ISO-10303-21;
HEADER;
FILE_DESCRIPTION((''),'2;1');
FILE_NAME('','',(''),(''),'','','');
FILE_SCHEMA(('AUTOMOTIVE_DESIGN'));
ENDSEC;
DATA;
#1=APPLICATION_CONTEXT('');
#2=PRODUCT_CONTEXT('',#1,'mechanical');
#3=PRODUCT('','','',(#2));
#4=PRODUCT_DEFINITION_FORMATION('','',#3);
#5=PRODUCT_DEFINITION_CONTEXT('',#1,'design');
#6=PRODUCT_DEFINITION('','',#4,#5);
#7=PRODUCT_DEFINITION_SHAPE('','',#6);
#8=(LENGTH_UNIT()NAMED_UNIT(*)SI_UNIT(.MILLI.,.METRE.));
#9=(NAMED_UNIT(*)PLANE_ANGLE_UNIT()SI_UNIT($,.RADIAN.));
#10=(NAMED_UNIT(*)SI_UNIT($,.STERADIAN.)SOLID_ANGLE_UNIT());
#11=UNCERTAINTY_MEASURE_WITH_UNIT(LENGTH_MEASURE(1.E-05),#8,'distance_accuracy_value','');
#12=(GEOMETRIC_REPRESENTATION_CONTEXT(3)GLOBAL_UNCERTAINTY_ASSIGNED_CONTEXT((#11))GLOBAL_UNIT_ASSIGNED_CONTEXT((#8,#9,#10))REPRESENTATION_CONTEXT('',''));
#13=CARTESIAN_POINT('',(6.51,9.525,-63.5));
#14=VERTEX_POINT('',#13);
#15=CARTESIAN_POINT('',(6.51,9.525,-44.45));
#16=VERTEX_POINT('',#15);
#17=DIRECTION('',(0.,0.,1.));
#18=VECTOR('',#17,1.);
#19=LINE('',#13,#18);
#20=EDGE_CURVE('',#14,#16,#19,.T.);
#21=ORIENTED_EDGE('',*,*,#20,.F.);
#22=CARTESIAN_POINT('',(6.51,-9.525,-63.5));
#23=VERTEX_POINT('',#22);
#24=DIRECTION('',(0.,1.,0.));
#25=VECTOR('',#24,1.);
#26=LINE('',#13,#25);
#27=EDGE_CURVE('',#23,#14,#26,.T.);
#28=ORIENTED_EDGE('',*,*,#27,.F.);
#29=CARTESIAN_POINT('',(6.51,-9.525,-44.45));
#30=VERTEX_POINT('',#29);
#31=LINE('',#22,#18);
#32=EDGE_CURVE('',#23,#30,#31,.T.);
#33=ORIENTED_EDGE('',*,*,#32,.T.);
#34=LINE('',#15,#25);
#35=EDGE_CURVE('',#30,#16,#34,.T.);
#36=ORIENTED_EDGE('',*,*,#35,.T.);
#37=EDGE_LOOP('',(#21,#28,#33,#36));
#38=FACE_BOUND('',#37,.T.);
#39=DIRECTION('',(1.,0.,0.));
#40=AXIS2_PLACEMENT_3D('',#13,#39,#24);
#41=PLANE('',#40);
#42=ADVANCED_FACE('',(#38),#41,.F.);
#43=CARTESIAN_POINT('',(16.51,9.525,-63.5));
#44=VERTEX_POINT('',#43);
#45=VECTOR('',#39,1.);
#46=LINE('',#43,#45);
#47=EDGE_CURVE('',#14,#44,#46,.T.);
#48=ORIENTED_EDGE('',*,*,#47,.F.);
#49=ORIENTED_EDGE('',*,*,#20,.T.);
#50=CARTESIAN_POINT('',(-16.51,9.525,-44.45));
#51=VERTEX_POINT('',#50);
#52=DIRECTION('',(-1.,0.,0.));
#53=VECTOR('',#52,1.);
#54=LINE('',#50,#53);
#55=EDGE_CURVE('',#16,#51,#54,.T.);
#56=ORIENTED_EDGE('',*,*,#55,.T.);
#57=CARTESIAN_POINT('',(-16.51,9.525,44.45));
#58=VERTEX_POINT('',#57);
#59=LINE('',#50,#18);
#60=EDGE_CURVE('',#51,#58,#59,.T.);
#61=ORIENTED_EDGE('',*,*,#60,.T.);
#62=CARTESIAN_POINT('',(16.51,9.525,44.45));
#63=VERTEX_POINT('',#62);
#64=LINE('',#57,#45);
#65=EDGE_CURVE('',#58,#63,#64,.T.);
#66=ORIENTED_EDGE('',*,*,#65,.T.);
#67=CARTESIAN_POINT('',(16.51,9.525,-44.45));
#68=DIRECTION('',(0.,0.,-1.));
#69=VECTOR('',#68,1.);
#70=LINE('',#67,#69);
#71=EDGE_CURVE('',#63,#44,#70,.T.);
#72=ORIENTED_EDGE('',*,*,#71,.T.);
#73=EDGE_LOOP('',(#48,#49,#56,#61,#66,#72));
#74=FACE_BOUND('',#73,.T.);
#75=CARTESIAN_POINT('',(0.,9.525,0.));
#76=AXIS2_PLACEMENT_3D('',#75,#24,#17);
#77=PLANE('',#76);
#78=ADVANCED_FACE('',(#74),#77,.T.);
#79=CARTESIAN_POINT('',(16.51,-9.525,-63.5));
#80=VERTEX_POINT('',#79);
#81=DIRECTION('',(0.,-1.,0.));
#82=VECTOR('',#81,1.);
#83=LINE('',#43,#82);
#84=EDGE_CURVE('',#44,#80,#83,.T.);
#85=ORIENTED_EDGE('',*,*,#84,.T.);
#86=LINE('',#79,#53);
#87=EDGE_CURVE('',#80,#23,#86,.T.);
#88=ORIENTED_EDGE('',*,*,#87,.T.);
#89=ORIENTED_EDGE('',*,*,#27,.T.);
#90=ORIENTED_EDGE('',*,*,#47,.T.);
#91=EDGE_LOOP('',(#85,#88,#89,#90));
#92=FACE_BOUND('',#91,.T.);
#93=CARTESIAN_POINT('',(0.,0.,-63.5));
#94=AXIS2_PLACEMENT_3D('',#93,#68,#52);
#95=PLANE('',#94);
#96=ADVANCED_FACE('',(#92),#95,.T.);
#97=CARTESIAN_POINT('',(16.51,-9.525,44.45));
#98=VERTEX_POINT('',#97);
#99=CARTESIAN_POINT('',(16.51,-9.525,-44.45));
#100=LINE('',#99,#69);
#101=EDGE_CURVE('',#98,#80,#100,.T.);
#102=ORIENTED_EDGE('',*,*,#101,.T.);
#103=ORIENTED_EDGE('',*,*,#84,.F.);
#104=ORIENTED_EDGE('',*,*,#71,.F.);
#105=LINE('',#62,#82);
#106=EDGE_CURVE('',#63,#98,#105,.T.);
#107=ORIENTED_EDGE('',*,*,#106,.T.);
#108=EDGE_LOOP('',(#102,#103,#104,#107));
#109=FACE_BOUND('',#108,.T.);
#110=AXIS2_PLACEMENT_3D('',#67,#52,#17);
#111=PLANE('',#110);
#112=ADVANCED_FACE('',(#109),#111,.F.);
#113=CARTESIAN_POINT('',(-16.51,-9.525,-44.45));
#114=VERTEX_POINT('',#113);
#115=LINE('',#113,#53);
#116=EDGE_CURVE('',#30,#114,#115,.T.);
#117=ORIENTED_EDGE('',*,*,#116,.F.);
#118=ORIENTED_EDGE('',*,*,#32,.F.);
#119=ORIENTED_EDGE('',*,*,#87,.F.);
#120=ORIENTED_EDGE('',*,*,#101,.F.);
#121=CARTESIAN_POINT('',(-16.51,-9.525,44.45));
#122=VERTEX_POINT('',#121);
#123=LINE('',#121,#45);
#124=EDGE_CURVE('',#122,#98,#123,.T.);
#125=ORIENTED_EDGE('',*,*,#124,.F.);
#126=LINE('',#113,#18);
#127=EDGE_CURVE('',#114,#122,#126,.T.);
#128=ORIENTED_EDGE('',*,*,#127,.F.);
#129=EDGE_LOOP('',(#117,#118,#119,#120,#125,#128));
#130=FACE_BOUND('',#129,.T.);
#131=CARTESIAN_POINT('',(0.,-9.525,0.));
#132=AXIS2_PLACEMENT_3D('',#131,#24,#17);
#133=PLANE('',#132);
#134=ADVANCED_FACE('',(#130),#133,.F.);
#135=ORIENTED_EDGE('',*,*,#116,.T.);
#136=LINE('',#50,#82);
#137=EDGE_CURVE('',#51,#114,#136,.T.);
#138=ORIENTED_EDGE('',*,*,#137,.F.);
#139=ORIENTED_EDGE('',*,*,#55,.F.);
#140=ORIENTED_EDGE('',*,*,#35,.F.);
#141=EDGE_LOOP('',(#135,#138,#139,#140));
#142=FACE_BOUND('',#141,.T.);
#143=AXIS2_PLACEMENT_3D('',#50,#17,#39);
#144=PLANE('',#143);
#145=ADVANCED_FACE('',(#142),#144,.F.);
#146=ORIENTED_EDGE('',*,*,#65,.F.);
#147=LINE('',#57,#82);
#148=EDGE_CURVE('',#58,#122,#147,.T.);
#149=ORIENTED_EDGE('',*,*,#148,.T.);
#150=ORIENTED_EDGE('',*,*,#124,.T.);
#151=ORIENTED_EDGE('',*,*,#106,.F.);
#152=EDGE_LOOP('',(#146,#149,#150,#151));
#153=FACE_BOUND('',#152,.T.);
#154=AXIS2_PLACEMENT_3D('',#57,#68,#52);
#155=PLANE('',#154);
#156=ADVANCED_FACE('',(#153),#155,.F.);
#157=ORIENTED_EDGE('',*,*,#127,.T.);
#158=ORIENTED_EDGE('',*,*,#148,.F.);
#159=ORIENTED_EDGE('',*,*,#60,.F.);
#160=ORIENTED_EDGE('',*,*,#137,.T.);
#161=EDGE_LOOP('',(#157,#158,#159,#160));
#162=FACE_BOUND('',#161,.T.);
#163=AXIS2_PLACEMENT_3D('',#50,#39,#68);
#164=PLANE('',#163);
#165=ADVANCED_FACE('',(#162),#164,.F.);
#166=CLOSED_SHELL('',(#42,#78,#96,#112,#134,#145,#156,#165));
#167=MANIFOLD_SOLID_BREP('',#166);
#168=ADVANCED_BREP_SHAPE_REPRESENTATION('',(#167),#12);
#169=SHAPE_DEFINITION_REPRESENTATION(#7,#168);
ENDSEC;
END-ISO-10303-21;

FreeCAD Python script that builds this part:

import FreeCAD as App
import Part
import Sketcher

V = App.Vector
Q = App.Units.Quantity


def add_polygon(sketch, points):
    """Adds a closed chain of lines whose ends are joined by coincident constraints."""
    first, n = sketch.GeometryCount, len(points)
    for a, b in zip(points, points[1:] + points[:1]):
        sketch.addGeometry(Part.LineSegment(App.Vector(*a, 0), App.Vector(*b, 0)), False)
    for i in range(n):
        sketch.addConstraint(Sketcher.Constraint("Coincident", first + i, 2, first + (i + 1) % n, 1))

doc = App.newDocument("Part")
params = doc.addObject("Spreadsheet::Sheet", "Params")
for row, (alias, value) in enumerate([
    ("sketch1_width", "1.3 in"),
    ("sketch1_height", "3.5 in"),
    ("pad1_length", "0.75 in"),
    ("sketch2_height", "0.75 in"),
    ("pad2_length", "0.75 in"),
], start=1):
    params.set(f"A{row}", alias)
    params.set(f"B{row}", "=" + value)
    params.setAlias(f"B{row}", alias)

body = doc.addObject("PartDesign::Body", "Body")

# Sketch on XZ plane
sketch1 = doc.addObject("Sketcher::SketchObject", "Sketch")
body.addObject(sketch1)
sketch1.AttachmentSupport = (doc.XZ_Plane, [""])
sketch1.MapMode = "FlatFace"
add_polygon(sketch1, [(-17, -44), (-17, 44), (17, 44), (17, -44)])  # lines 0-3
sketch1.addConstraint([
    Sketcher.Constraint("Vertical", 0),
    Sketcher.Constraint("Horizontal", 1),
    Sketcher.Constraint("Vertical", 2),
    Sketcher.Constraint("Horizontal", 3),
    Sketcher.Constraint("Symmetric", 0, 2, 2, 2, -1, 1),
    Sketcher.Constraint("DistanceX", 1, 1, 1, 2, Q("1.3 in")),
    Sketcher.Constraint("DistanceY", 0, 1, 0, 2, Q("3.5 in")),
])
sketch1.setExpression("Constraints[9]", "Params.sketch1_width")
sketch1.setExpression("Constraints[10]", "Params.sketch1_height")
pad1 = doc.addObject("PartDesign::Pad", "Pad")
body.addObject(pad1)
pad1.Profile = sketch1
pad1.setExpression("Length", "Params.pad1_length")
pad1.Midplane = True

# Sketch on XY plane
sketch2 = doc.addObject("Sketcher::SketchObject", "Sketch001")
body.addObject(sketch2)
sketch2.AttachmentSupport = (doc.XY_Plane, [""])
sketch2.MapMode = "FlatFace"
sketch2.AttachmentOffset = App.Placement(V(0, 0, -1.75 * 25.4), App.Rotation())
add_polygon(sketch2, [(17, 10), (17, -10), (7, -10), (7, 10)])  # lines 0-3
sketch2.addConstraint([
    Sketcher.Constraint("Vertical", 0),
    Sketcher.Constraint("Horizontal", 1),
    Sketcher.Constraint("Vertical", 2),
    Sketcher.Constraint("Horizontal", 3),
    Sketcher.Constraint("DistanceY", 0, 2, 0, 1, Q("0.75 in")),
    Sketcher.Constraint("DistanceX", -1, 1, 0, 2, Q("0.65 in")),
    Sketcher.Constraint("DistanceY", 0, 2, -1, 1, Q("0.375 in")),
    Sketcher.Constraint("DistanceX", 1, 2, 1, 1, Q("10 mm")),
])
sketch2.setExpression("Constraints[8]", "Params.sketch2_height")
pad2 = doc.addObject("PartDesign::Pad", "Pad001")
body.addObject(pad2)
pad2.Profile = sketch2
pad2.setExpression("Length", "Params.pad2_length")
pad2.Reversed = True

doc.recompute()
